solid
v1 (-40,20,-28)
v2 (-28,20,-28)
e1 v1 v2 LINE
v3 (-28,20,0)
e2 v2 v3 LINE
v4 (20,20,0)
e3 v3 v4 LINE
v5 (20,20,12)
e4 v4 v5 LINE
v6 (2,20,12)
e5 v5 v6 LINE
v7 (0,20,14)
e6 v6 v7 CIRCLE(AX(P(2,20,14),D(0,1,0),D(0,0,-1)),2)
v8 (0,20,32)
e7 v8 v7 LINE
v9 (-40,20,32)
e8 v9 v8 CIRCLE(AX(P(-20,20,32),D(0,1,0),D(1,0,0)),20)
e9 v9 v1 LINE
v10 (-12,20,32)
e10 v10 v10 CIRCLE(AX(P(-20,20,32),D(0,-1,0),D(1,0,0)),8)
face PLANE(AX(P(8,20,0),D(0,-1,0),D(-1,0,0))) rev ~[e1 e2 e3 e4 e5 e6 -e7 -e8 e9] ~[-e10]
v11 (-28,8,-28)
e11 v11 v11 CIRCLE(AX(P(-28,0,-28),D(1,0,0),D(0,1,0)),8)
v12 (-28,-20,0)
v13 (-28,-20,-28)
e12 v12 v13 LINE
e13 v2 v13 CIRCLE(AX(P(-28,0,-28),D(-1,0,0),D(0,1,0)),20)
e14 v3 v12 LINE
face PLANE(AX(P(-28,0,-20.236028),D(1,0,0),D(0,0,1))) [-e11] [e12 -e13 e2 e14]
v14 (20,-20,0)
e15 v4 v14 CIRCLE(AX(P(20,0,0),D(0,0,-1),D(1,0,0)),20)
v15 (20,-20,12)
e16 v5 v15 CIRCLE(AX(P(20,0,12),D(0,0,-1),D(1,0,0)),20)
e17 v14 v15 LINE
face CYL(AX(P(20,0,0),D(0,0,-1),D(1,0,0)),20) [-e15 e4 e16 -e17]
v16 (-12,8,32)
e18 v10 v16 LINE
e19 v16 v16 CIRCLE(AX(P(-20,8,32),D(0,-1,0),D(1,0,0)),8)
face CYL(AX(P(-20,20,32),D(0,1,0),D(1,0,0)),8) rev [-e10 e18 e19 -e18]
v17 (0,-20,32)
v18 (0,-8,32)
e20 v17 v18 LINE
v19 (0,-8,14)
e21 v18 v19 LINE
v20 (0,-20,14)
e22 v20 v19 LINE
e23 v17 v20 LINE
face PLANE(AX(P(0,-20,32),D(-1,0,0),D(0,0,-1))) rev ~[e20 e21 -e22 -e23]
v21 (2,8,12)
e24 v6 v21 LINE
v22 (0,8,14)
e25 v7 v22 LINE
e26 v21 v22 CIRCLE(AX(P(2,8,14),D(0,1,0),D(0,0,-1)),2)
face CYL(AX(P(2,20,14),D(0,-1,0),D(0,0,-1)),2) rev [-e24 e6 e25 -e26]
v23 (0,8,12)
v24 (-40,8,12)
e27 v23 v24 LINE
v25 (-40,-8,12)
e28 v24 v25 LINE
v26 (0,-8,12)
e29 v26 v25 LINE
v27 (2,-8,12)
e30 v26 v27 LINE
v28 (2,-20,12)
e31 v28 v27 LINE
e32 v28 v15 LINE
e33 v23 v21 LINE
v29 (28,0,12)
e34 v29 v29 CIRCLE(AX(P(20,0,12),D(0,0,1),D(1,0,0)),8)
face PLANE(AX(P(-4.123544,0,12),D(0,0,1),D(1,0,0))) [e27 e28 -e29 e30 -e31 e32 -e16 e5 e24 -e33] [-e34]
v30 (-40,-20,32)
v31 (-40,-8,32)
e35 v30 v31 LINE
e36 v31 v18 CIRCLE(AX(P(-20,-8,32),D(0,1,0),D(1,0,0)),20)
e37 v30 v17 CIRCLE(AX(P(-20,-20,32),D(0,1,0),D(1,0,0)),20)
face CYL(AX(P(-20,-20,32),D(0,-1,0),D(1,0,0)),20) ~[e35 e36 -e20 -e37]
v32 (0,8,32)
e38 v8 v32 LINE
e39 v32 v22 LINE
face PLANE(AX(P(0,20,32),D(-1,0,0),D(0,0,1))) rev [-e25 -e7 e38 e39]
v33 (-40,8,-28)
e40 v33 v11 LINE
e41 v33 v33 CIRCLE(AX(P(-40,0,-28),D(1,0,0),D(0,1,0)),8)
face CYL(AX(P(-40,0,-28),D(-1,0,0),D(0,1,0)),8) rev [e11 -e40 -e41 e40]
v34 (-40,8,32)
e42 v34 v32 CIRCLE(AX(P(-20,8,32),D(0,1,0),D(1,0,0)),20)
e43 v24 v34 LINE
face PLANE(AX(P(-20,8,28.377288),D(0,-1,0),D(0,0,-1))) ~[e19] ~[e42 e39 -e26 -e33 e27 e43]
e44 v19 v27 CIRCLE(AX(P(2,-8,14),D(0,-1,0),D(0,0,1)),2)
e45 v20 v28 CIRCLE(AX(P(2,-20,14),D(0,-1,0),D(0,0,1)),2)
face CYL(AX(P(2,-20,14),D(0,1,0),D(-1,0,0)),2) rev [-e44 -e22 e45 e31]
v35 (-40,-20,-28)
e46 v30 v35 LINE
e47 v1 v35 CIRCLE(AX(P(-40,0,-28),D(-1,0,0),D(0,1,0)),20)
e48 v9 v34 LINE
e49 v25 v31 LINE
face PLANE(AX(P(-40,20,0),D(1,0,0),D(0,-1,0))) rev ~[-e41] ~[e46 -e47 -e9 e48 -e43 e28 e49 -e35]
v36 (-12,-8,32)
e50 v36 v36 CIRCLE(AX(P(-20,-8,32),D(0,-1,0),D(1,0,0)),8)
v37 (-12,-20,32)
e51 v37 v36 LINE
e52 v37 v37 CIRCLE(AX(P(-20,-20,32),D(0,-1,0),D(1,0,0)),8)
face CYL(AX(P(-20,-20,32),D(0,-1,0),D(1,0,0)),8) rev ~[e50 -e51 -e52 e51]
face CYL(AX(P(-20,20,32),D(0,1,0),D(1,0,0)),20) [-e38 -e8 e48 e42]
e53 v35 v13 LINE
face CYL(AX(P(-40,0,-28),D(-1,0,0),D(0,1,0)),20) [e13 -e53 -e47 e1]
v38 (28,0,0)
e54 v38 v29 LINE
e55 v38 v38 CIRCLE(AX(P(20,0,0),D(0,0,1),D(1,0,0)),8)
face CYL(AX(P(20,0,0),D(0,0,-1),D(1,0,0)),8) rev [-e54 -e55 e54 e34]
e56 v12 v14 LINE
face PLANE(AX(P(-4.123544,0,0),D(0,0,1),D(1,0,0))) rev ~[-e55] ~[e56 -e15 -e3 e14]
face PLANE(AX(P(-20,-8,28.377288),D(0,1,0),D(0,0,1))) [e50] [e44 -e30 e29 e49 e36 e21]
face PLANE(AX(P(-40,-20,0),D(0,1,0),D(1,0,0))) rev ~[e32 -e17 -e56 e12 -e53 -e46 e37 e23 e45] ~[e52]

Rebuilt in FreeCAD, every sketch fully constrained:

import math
import FreeCAD as App
import Part
import Sketcher


def edges_at(feature, points):
    """Names of the edges that pass closest to the given points."""
    edges = feature.Shape.Edges
    near = lambda p: min(range(len(edges)), key=lambda i: edges[i].distToShape(Part.Vertex(*p))[0])
    return sorted({f"Edge{near(p) + 1}" for p in points})

doc = App.newDocument("Part")
body = doc.addObject("PartDesign::Body", "Body")

sketch1 = doc.addObject("Sketcher::SketchObject", "Sketch")
body.addObject(sketch1)
sketch1.AttachmentSupport = (doc.XY_Plane, [""])
sketch1.MapMode = "FlatFace"
sketch1.addGeometry([
    Part.LineSegment(App.Vector(-40, 20, 0), App.Vector(-40, -20, 0)),
    Part.LineSegment(App.Vector(-40, -20, 0), App.Vector(20, -20, 0)),
    Part.ArcOfCircle(Part.Circle(App.Vector(20, 0, 0), App.Vector(0, 0, 1), 20), math.radians(-90), math.radians(90)),
    Part.LineSegment(App.Vector(20, 20, 0), App.Vector(-40, 20, 0)),
    Part.Circle(App.Vector(20, 0, 0), App.Vector(0, 0, 1), 8),
], False)
sketch1.addConstraint([
    Sketcher.Constraint("Coincident", 0, 2, 1, 1),
    Sketcher.Constraint("Tangent", 1, 2, 2, 1),
    Sketcher.Constraint("Tangent", 2, 2, 3, 1),
    Sketcher.Constraint("Coincident", 3, 2, 0, 1),
    Sketcher.Constraint("Vertical", 0),
    Sketcher.Constraint("Horizontal", 1),
    Sketcher.Constraint("Horizontal", 3),
    Sketcher.Constraint("Coincident", 4, 3, 2, 3),
    Sketcher.Constraint("PointOnObject", 2, 3, -1),
    Sketcher.Constraint("Diameter", 4, 16.0),
    Sketcher.Constraint("Radius", 2, 20.0),
    Sketcher.Constraint("DistanceX", 1, 1, 1, 2, 60.0),
    Sketcher.Constraint("DistanceX", -1, 1, 2, 3, 20.0),
])
pad1 = doc.addObject("PartDesign::Pad", "Pad")
body.addObject(pad1)
pad1.Profile = sketch1
pad1.Length = 12

sketch2 = doc.addObject("Sketcher::SketchObject", "Sketch001")
body.addObject(sketch2)
sketch2.AttachmentSupport = (doc.XZ_Plane, [""])
sketch2.MapMode = "FlatFace"
sketch2.AttachmentOffset = App.Placement(App.Vector(0, 0, 20), App.Rotation())
sketch2.addGeometry([
    Part.LineSegment(App.Vector(0, 12, 0), App.Vector(0, 32, 0)),
    Part.ArcOfCircle(Part.Circle(App.Vector(-20, 32, 0), App.Vector(0, 0, 1), 20), math.radians(0), math.radians(180)),
    Part.LineSegment(App.Vector(-40, 32, 0), App.Vector(-40, 12, 0)),
    Part.LineSegment(App.Vector(-40, 12, 0), App.Vector(0, 12, 0)),
    Part.Circle(App.Vector(-20, 32, 0), App.Vector(0, 0, 1), 8),
], False)
sketch2.addConstraint([
    Sketcher.Constraint("Tangent", 0, 2, 1, 1),
    Sketcher.Constraint("Tangent", 1, 2, 2, 1),
    Sketcher.Constraint("Coincident", 2, 2, 3, 1),
    Sketcher.Constraint("Coincident", 3, 2, 0, 1),
    Sketcher.Constraint("Vertical", 0),
    Sketcher.Constraint("Vertical", 2),
    Sketcher.Constraint("Horizontal", 3),
    Sketcher.Constraint("Coincident", 4, 3, 1, 3),
    Sketcher.Constraint("PointOnObject", 0, 2, -2),
    Sketcher.Constraint("Diameter", 4, 16.0),
    Sketcher.Constraint("Radius", 1, 20.0),
    Sketcher.Constraint("DistanceY", 0, 1, 0, 2, 20.0),
    Sketcher.Constraint("DistanceY", -1, 1, 1, 3, 32.0),
])
pad2 = doc.addObject("PartDesign::Pad", "Pad001")
body.addObject(pad2)
pad2.Profile = sketch2
pad2.Length = 12
pad2.Reversed = True
doc.recompute()

mirrored = doc.addObject("PartDesign::Mirrored", "Mirrored")
body.addObject(mirrored)
mirrored.Originals = [pad2]
mirrored.MirrorPlane = (doc.XZ_Plane, [""])
body.Tip = mirrored

sketch3 = doc.addObject("Sketcher::SketchObject", "Sketch002")
body.addObject(sketch3)
sketch3.AttachmentSupport = (doc.YZ_Plane, [""])
sketch3.MapMode = "FlatFace"
sketch3.AttachmentOffset = App.Placement(App.Vector(0, 0, -40), App.Rotation())
sketch3.addGeometry([
    Part.LineSegment(App.Vector(20, 0, 0), App.Vector(-20, 0, 0)),
    Part.LineSegment(App.Vector(-20, 0, 0), App.Vector(-20, -28, 0)),
    Part.ArcOfCircle(Part.Circle(App.Vector(0, -28, 0), App.Vector(0, 0, 1), 20), math.radians(180), math.radians(360)),
    Part.LineSegment(App.Vector(20, -28, 0), App.Vector(20, 0, 0)),
    Part.Circle(App.Vector(0, -28, 0), App.Vector(0, 0, 1), 8),
], False)
sketch3.addConstraint([
    Sketcher.Constraint("Coincident", 0, 2, 1, 1),
    Sketcher.Constraint("Tangent", 1, 2, 2, 1),
    Sketcher.Constraint("Tangent", 2, 2, 3, 1),
    Sketcher.Constraint("Coincident", 3, 2, 0, 1),
    Sketcher.Constraint("Horizontal", 0),
    Sketcher.Constraint("Vertical", 1),
    Sketcher.Constraint("Vertical", 3),
    Sketcher.Constraint("Coincident", 4, 3, 2, 3),
    Sketcher.Constraint("Symmetric", 0, 2, 3, 2, -1, 1),
    Sketcher.Constraint("Diameter", 4, 16.0),
    Sketcher.Constraint("Radius", 2, 20.0),
    Sketcher.Constraint("DistanceY", 1, 2, 1, 1, 28.0),
])
pad3 = doc.addObject("PartDesign::Pad", "Pad002")
body.addObject(pad3)
pad3.Profile = sketch3
pad3.Length = 12
doc.recompute()

fillet = doc.addObject("PartDesign::Fillet", "Fillet")
body.addObject(fillet)
fillet.Base = (pad3, edges_at(pad3, [(0, -14, 12)]))
fillet.Radius = 2
doc.recompute()

fillet2 = doc.addObject("PartDesign::Fillet", "Fillet001")
body.addObject(fillet2)
fillet2.Base = (fillet, edges_at(fillet, [(0, 14, 12)]))
fillet2.Radius = 2

doc.recompute()
